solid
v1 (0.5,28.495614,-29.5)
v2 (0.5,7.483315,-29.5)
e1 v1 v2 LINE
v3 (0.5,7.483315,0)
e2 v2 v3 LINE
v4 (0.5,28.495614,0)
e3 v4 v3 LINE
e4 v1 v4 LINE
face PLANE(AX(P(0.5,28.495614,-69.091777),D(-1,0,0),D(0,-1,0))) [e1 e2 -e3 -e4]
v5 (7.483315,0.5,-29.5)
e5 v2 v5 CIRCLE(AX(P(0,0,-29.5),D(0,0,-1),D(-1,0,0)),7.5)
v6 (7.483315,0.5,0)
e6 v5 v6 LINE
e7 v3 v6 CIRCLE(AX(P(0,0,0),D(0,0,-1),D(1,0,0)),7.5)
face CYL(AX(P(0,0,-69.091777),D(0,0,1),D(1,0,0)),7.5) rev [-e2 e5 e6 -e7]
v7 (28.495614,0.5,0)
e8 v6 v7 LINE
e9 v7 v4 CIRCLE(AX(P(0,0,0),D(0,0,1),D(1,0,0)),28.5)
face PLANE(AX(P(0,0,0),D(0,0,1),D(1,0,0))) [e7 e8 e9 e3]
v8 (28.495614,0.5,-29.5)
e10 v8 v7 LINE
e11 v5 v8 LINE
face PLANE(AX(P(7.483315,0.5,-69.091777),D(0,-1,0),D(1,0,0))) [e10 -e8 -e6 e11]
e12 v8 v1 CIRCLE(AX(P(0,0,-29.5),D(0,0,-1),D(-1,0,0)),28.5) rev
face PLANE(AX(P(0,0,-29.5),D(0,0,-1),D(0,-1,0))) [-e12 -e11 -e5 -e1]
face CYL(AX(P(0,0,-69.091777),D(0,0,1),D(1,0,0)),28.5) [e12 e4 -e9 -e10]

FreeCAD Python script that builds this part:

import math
import FreeCAD as App
import Part
import Sketcher
from FreeCAD import Vector

doc = App.newDocument("Part")
body = doc.addObject("PartDesign::Body", "Body")

# Sketch on XY plane
sketch1 = body.newObject("Sketcher::SketchObject", "Sketch")
sketch1.AttachmentSupport = (doc.getObject("XY_Plane"), [""])
sketch1.MapMode = "FlatFace"
sketch1.addGeometry(Part.LineSegment(Vector(0, 28, 0), Vector(0, 7, 0)), False)
sketch1.addGeometry(Part.ArcOfCircle(Part.Circle(Vector(0, 0, 0), Vector(0, 0, 1), 8), math.radians(4), math.radians(86)), False)
sketch1.addGeometry(Part.LineSegment(Vector(7, 0, 0), Vector(28, 0, 0)), False)
sketch1.addGeometry(Part.ArcOfCircle(Part.Circle(Vector(0, 0, 0), Vector(0, 0, 1), 29), math.radians(1), math.radians(89)), False)
sketch1.addConstraint(Sketcher.Constraint("Coincident", 0, 2, 1, 2))
sketch1.addConstraint(Sketcher.Constraint("Coincident", 1, 1, 2, 1))
sketch1.addConstraint(Sketcher.Constraint("Coincident", 2, 2, 3, 1))
sketch1.addConstraint(Sketcher.Constraint("Coincident", 3, 2, 0, 1))
sketch1.addConstraint(Sketcher.Constraint("Vertical", 0))
sketch1.addConstraint(Sketcher.Constraint("Horizontal", 2))
sketch1.addConstraint(Sketcher.Constraint("Coincident", 1, 3, -1, 1))
sketch1.addConstraint(Sketcher.Constraint("Coincident", 3, 3, -1, 1))
sketch1.addConstraint(Sketcher.Constraint("Equal", 2, 0))
sketch1.addConstraint(Sketcher.Constraint("Radius", 1, 7.5))
sketch1.addConstraint(Sketcher.Constraint("Radius", 3, 28.5))
sketch1.addConstraint(Sketcher.Constraint("DistanceX", -1, 1, 0, 2, 0.5))
pad1 = body.newObject("PartDesign::Pad", "Pad")
pad1.Profile = sketch1
pad1.Length = 29.5
pad1.Reversed = True

doc.recompute()
